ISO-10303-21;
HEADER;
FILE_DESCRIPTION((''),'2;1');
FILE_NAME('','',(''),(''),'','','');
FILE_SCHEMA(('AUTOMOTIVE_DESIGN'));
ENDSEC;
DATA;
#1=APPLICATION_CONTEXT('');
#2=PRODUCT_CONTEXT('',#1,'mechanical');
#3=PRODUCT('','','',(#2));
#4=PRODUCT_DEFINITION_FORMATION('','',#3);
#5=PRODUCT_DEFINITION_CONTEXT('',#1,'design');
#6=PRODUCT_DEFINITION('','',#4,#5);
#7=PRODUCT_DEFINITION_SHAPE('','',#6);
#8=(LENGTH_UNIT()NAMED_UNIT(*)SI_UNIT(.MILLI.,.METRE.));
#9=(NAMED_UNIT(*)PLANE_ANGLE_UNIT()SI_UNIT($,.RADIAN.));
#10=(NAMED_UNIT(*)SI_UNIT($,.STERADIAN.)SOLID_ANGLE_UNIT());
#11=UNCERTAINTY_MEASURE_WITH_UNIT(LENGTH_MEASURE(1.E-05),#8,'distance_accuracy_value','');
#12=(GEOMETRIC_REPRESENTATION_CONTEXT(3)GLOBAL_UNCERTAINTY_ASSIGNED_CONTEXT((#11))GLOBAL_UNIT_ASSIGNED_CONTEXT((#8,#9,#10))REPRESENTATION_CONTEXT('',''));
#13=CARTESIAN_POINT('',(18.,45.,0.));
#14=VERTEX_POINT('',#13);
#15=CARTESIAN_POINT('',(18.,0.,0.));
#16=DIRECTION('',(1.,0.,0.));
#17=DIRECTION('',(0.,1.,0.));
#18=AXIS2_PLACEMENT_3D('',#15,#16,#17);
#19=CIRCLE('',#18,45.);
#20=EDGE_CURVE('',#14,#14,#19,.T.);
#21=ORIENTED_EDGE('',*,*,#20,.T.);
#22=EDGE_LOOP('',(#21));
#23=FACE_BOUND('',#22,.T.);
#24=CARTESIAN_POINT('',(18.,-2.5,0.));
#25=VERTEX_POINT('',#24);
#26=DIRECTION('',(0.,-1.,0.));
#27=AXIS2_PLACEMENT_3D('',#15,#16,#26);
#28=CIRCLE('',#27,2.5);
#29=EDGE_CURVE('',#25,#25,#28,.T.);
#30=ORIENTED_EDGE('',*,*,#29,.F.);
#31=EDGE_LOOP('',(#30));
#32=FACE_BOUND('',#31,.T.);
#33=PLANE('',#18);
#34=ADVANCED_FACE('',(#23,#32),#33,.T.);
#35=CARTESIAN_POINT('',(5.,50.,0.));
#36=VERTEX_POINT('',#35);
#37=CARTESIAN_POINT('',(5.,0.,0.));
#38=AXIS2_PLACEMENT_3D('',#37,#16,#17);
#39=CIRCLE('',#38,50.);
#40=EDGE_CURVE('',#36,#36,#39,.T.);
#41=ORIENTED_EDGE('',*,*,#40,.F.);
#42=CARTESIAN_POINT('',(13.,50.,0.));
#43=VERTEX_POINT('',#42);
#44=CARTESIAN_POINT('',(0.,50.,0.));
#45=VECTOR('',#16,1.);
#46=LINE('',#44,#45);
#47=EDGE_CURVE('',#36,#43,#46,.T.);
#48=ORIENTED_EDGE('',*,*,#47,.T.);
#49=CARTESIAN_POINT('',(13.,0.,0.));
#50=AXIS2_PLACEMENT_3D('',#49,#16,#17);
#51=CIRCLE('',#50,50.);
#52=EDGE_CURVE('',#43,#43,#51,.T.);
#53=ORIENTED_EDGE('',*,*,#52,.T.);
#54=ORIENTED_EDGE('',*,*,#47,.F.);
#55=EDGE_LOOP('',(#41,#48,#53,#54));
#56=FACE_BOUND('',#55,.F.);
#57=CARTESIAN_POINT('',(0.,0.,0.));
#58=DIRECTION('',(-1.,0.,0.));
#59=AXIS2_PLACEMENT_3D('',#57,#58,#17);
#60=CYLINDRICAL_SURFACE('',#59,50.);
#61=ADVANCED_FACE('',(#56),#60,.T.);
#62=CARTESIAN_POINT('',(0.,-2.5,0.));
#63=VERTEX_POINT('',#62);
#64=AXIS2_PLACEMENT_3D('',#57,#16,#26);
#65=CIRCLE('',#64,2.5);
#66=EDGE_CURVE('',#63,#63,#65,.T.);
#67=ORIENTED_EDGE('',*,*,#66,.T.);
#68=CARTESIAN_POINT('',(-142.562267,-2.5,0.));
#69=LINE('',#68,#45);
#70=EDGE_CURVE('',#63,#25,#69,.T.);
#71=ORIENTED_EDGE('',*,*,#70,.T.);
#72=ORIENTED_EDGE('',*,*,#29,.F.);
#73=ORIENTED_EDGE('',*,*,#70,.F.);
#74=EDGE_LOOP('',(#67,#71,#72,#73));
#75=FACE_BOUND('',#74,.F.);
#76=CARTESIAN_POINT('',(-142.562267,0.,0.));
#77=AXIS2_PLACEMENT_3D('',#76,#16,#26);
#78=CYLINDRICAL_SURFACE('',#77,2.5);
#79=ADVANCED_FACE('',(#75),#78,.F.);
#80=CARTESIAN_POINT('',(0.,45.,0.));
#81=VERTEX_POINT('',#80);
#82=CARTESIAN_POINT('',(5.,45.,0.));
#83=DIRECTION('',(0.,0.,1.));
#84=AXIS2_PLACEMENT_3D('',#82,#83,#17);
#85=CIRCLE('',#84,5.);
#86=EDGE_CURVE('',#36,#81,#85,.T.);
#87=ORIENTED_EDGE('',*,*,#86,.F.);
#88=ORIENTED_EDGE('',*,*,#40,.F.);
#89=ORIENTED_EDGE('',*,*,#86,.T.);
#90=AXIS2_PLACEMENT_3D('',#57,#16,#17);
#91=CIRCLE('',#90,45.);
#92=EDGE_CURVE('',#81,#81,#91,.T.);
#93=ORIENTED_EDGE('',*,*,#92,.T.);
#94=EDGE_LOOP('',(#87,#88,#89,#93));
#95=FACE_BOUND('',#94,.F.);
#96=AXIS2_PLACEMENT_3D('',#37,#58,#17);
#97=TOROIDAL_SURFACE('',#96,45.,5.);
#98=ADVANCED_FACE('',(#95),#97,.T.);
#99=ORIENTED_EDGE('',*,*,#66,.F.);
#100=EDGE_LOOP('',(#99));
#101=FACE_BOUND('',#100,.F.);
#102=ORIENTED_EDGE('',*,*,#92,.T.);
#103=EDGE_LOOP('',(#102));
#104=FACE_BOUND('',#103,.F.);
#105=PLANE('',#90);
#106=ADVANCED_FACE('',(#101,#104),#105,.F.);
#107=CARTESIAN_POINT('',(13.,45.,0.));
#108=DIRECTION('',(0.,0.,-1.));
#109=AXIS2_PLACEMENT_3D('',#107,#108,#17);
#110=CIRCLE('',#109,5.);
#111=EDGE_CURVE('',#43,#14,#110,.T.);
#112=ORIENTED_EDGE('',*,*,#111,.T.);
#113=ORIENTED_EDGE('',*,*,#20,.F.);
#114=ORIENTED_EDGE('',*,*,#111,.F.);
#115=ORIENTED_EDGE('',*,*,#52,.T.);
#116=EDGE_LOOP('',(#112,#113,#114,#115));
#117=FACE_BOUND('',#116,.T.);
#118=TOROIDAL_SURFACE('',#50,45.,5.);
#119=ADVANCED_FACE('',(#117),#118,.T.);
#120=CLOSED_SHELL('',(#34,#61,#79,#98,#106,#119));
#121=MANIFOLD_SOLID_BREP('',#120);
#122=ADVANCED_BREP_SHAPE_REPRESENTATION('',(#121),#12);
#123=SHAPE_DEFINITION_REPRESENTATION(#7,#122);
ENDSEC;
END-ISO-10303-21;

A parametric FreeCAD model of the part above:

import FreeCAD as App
import Part
import Sketcher
from FreeCAD import Vector


def edges_at(feature, points):
    """Names of the edges that pass closest to the given points."""
    edges = feature.Shape.Edges
    near = lambda p: min(range(len(edges)), key=lambda i: edges[i].distToShape(Part.Vertex(*p))[0])
    return sorted({f"Edge{near(p) + 1}" for p in points})

doc = App.newDocument("Part")
body = doc.addObject("PartDesign::Body", "Body")

sketch1 = doc.addObject("Sketcher::SketchObject", "Sketch")
body.addObject(sketch1)
sketch1.AttachmentSupport = (doc.YZ_Plane, [""])
sketch1.MapMode = "FlatFace"
sketch1.addGeometry(Part.Circle(Vector(0, 0, 0), Vector(0, 0, 1), 50), False)
sketch1.addConstraint(Sketcher.Constraint("Coincident", 0, 3, -1, 1))
sketch1.addConstraint(Sketcher.Constraint("Diameter", 0, 100.0))
pad1 = doc.addObject("PartDesign::Pad", "Pad")
body.addObject(pad1)
pad1.Profile = sketch1
pad1.Length = 18
doc.recompute()

fillet = doc.addObject("PartDesign::Fillet", "Fillet")
body.addObject(fillet)
fillet.Base = (pad1, edges_at(pad1, [(18, -50, 0), (0, -50, 0)]))
fillet.Radius = 5

sketch2 = doc.addObject("Sketcher::SketchObject", "Sketch001")
body.addObject(sketch2)
sketch2.AttachmentSupport = (doc.YZ_Plane, [""])
sketch2.MapMode = "FlatFace"
sketch2.addGeometry(Part.Circle(Vector(0, 0, 0), Vector(0, 0, 1), 2.5), False)
sketch2.addConstraint(Sketcher.Constraint("Coincident", 0, 3, -1, 1))
sketch2.addConstraint(Sketcher.Constraint("Diameter", 0, 5.0))
doc.recompute()
hole = doc.addObject("PartDesign::Hole", "Hole")
body.addObject(hole)
hole.Profile = sketch2
hole.ThreadType = "None"
hole.Diameter = 5
hole.DepthType = "ThroughAll"
hole.Reversed = True

doc.recompute()
